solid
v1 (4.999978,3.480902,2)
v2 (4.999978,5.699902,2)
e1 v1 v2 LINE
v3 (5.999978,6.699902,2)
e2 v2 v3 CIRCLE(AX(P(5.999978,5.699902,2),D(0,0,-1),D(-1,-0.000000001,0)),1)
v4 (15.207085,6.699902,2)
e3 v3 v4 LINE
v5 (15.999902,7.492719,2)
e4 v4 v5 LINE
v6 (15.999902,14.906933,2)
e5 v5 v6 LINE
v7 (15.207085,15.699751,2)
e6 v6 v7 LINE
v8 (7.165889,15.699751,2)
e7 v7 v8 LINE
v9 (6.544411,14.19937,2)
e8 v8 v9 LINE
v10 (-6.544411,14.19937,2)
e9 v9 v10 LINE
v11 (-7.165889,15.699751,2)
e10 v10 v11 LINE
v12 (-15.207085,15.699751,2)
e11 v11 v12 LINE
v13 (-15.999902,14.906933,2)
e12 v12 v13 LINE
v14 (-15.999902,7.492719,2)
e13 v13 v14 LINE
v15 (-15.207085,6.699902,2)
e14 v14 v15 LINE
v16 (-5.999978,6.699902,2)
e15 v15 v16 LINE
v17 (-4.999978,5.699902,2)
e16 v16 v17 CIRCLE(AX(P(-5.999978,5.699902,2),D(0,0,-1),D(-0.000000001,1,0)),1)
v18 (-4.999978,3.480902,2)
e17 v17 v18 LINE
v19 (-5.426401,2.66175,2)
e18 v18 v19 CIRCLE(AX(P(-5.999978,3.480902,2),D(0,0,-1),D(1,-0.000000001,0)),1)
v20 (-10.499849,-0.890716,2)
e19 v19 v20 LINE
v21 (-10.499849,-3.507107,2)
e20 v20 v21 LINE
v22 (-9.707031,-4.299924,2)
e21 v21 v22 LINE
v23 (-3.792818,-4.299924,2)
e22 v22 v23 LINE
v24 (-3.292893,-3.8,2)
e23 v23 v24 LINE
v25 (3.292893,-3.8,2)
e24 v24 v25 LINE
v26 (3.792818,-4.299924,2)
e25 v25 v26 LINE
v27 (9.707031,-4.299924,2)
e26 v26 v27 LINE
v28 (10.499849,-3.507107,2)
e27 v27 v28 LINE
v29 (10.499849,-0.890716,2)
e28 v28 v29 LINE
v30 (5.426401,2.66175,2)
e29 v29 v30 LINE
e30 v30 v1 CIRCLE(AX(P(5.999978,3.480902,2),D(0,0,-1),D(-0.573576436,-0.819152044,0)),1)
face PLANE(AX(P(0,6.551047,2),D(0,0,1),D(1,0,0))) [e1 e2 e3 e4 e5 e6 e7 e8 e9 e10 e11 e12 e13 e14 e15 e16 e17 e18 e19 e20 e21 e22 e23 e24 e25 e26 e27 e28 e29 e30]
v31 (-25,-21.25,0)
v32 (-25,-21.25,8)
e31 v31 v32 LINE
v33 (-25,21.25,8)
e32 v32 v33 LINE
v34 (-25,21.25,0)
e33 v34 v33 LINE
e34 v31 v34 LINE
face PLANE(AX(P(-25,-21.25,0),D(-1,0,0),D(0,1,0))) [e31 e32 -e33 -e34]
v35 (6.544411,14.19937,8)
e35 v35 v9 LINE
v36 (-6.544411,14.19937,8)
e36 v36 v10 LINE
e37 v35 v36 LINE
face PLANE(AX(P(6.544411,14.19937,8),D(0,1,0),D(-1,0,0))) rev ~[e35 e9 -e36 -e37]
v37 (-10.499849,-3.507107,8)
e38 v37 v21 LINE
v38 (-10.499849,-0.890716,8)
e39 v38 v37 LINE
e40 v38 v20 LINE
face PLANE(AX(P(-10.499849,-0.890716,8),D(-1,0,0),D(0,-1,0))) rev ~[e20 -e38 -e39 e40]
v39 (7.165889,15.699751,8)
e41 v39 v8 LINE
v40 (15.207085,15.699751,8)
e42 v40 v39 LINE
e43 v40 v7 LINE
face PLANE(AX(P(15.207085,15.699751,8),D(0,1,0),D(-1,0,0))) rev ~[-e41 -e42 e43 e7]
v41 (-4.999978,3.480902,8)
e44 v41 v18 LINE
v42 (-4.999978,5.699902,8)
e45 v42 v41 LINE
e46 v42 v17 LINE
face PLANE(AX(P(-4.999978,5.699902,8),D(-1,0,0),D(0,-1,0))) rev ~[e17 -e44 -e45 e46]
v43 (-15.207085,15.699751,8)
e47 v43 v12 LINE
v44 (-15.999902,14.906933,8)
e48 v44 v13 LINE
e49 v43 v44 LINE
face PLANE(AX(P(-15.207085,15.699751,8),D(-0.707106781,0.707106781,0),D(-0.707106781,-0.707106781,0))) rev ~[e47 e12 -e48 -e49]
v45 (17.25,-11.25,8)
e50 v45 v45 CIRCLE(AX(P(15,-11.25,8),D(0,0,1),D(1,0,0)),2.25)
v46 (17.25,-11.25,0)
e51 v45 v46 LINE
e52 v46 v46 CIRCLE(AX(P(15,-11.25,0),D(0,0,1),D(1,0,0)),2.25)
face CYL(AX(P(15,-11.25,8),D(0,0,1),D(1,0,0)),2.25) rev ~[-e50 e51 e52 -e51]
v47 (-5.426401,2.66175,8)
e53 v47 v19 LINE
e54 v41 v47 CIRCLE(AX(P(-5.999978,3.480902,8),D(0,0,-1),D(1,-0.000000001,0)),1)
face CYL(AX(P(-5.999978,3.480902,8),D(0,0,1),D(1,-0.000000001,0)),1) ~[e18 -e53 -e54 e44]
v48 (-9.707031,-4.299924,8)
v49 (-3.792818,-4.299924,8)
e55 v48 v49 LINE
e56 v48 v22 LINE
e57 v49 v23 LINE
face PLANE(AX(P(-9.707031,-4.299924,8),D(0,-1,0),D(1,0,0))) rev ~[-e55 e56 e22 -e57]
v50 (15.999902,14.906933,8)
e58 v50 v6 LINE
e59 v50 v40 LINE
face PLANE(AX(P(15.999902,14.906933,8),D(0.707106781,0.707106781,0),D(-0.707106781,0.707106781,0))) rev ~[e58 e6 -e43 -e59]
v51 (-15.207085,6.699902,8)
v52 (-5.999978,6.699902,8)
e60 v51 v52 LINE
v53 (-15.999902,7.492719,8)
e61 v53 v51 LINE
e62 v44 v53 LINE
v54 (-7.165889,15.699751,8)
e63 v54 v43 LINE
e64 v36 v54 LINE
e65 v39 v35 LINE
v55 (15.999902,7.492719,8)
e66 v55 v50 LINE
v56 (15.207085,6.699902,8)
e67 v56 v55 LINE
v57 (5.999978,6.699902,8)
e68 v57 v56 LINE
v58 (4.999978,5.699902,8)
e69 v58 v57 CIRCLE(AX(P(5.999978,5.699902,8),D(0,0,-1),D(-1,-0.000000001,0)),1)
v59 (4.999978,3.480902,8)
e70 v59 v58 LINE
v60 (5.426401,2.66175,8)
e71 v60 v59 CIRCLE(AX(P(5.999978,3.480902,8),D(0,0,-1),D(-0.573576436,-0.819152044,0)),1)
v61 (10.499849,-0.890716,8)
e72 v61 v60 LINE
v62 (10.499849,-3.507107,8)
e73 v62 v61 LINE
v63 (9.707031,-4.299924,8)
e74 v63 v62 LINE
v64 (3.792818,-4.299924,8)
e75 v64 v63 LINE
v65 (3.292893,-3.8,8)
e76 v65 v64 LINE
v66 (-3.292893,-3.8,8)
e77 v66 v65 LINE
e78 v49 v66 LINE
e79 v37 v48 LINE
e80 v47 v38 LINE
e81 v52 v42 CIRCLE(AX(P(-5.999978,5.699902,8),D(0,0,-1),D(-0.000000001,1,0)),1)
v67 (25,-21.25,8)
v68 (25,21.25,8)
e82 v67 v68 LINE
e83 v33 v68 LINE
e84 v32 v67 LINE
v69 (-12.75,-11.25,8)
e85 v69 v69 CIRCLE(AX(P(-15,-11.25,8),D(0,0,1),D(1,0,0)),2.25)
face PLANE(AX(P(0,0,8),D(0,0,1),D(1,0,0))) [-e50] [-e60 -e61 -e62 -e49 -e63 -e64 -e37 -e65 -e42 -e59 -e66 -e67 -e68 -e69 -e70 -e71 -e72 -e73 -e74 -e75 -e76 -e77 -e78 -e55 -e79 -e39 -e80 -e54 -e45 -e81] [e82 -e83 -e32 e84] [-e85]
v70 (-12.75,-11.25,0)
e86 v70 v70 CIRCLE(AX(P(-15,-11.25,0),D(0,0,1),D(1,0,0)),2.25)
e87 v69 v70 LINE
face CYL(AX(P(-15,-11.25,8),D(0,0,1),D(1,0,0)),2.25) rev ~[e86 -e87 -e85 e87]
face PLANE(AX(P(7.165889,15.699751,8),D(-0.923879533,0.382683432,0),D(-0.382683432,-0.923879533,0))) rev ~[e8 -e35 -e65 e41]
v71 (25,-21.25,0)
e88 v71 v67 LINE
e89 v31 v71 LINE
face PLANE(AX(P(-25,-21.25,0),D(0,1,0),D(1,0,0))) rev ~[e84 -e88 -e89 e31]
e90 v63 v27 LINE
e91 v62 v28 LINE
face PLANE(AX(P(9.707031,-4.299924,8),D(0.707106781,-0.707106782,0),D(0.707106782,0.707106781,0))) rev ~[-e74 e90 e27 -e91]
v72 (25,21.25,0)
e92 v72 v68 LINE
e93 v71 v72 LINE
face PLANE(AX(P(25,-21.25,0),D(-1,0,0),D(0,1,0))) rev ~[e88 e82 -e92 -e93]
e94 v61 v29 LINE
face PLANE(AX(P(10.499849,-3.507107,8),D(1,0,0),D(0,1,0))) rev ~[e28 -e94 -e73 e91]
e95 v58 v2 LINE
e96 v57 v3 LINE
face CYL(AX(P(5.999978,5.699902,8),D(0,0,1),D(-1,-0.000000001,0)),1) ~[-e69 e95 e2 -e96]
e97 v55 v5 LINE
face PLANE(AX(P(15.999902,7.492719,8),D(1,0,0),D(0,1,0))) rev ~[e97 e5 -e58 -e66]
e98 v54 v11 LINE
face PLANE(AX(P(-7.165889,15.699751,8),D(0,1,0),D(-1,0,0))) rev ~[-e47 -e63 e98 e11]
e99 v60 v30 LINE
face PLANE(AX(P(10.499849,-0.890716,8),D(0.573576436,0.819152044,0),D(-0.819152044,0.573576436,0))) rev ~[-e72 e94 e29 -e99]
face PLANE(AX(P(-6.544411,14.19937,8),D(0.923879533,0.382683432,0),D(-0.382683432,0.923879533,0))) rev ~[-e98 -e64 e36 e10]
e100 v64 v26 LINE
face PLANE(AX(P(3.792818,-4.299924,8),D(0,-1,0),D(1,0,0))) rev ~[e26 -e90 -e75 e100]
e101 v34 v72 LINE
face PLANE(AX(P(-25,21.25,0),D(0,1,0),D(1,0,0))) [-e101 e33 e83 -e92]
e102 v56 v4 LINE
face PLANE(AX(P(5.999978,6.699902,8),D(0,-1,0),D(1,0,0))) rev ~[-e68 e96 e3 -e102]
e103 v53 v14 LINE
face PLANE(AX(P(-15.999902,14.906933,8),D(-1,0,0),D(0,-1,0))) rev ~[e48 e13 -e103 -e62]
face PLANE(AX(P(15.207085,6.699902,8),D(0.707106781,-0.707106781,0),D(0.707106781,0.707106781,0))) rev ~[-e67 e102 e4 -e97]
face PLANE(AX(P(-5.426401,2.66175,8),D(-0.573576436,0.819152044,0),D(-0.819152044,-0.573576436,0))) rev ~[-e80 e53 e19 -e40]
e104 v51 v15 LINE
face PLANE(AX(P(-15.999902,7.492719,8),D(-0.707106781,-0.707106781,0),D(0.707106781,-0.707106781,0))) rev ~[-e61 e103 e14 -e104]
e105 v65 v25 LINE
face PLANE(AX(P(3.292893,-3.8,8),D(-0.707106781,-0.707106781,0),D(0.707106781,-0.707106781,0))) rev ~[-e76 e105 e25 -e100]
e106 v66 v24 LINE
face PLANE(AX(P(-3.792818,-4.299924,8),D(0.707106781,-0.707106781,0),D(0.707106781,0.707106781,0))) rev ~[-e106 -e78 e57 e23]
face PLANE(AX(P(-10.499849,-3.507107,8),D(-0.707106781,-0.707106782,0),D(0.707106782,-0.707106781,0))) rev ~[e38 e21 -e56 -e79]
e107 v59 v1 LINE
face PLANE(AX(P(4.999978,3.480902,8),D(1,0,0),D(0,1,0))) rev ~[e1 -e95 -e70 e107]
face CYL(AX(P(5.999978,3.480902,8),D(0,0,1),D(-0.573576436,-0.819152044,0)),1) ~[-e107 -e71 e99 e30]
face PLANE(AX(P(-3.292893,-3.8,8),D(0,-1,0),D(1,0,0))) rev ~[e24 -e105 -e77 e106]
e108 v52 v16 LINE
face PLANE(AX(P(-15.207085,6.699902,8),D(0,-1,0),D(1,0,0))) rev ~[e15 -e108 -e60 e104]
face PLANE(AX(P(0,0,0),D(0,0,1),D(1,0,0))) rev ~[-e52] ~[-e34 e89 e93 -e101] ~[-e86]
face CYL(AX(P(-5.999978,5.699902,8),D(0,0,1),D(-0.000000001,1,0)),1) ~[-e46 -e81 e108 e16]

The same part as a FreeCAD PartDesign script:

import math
import FreeCAD as App
import Part
import Sketcher

V = App.Vector
Q = App.Units.Quantity

doc = App.newDocument("Part")
body = doc.addObject("PartDesign::Body", "Body")

# Sketch on XY plane
sketch1 = body.newObject("Sketcher::SketchObject", "Sketch")
sketch1.AttachmentSupport = (doc.getObject("XY_Plane"), [""])
sketch1.MapMode = "FlatFace"
sketch1.addGeometry([
    Part.LineSegment(V(-25, 21, 0), V(-25, -21, 0)),
    Part.LineSegment(V(-25, -21, 0), V(25, -21, 0)),
    Part.LineSegment(V(25, -21, 0), V(25, 21, 0)),
    Part.LineSegment(V(25, 21, 0), V(-25, 21, 0)),
], False)
sketch1.addConstraint([
    Sketcher.Constraint("Coincident", 0, 2, 1, 1),
    Sketcher.Constraint("Coincident", 1, 2, 2, 1),
    Sketcher.Constraint("Coincident", 2, 2, 3, 1),
    Sketcher.Constraint("Coincident", 3, 2, 0, 1),
    Sketcher.Constraint("Vertical", 0),
    Sketcher.Constraint("Horizontal", 1),
    Sketcher.Constraint("Vertical", 2),
    Sketcher.Constraint("Horizontal", 3),
    Sketcher.Constraint("Symmetric", 0, 2, 2, 2, -1, 1),
    Sketcher.Constraint("DistanceX", 1, 1, 1, 2, 50.0),
    Sketcher.Constraint("DistanceY", 0, 2, 0, 1, 42.5),
])
pad1 = body.newObject("PartDesign::Pad", "Pad")
pad1.Profile = sketch1
pad1.Length = 8

# Sketch on XY plane
sketch2 = body.newObject("Sketcher::SketchObject", "Sketch001")
sketch2.AttachmentSupport = (doc.getObject("XY_Plane"), [""])
sketch2.MapMode = "FlatFace"
sketch2.AttachmentOffset = App.Placement(V(0, 0, 8), App.Rotation())
sketch2.addGeometry([
    Part.LineSegment(V(-3.3, -3.8, 0), V(3.3, -3.8, 0)),  # 0
    Part.LineSegment(V(3.3, -3.8, 0), V(3.8, -4.3, 0)),  # 1
    Part.LineSegment(V(3.8, -4.3, 0), V(9.7, -4.3, 0)),  # 2
    Part.LineSegment(V(9.7, -4.3, 0), V(10.5, -3.5, 0)),  # 3
    Part.LineSegment(V(10.5, -3.5, 0), V(10.5, -0.9, 0)),  # 4
    Part.LineSegment(V(10.5, -0.9, 0), V(5.4, 2.7, 0)),  # 5
    Part.ArcOfCircle(Part.Circle(V(6, 3.5, 0), V(0, 0, 1), 1), math.radians(-180), math.radians(-125)),  # 6
    Part.LineSegment(V(5, 3.5, 0), V(5, 5.7, 0)),  # 7
    Part.ArcOfCircle(Part.Circle(V(6, 5.7, 0), V(0, 0, 1), 1), math.radians(90), math.radians(180)),  # 8
    Part.LineSegment(V(6, 6.7, 0), V(15.2, 6.7, 0)),  # 9
    Part.LineSegment(V(15.2, 6.7, 0), V(16, 7.5, 0)),  # 10
    Part.LineSegment(V(16, 7.5, 0), V(16, 14.9, 0)),  # 11
    Part.LineSegment(V(16, 14.9, 0), V(15.2, 15.7, 0)),  # 12
    Part.LineSegment(V(15.2, 15.7, 0), V(7.2, 15.7, 0)),  # 13
    Part.LineSegment(V(7.2, 15.7, 0), V(6.5, 14.2, 0)),  # 14
    Part.LineSegment(V(6.5, 14.2, 0), V(-6.5, 14.2, 0)),  # 15
    Part.LineSegment(V(-6.5, 14.2, 0), V(-7.2, 15.7, 0)),  # 16
    Part.LineSegment(V(-7.2, 15.7, 0), V(-15.2, 15.7, 0)),  # 17
    Part.LineSegment(V(-15.2, 15.7, 0), V(-16, 14.9, 0)),  # 18
    Part.LineSegment(V(-16, 14.9, 0), V(-16, 7.5, 0)),  # 19
    Part.LineSegment(V(-16, 7.5, 0), V(-15.2, 6.7, 0)),  # 20
    Part.LineSegment(V(-15.2, 6.7, 0), V(-6, 6.7, 0)),  # 21
    Part.ArcOfCircle(Part.Circle(V(-6, 5.7, 0), V(0, 0, 1), 1), math.radians(0), math.radians(90)),  # 22
    Part.LineSegment(V(-5, 5.7, 0), V(-5, 3.5, 0)),  # 23
    Part.ArcOfCircle(Part.Circle(V(-6, 3.5, 0), V(0, 0, 1), 1), math.radians(-55), math.radians(0)),  # 24
    Part.LineSegment(V(-5.4, 2.7, 0), V(-10.5, -0.9, 0)),  # 25
    Part.LineSegment(V(-10.5, -0.9, 0), V(-10.5, -3.5, 0)),  # 26
    Part.LineSegment(V(-10.5, -3.5, 0), V(-9.7, -4.3, 0)),  # 27
    Part.LineSegment(V(-9.7, -4.3, 0), V(-3.8, -4.3, 0)),  # 28
    Part.LineSegment(V(-3.8, -4.3, 0), V(-3.3, -3.8, 0)),  # 29
], False)
sketch2.addConstraint([
    Sketcher.Constraint("Coincident", 0, 2, 1, 1),
    Sketcher.Constraint("Coincident", 1, 2, 2, 1),
    Sketcher.Constraint("Coincident", 2, 2, 3, 1),
    Sketcher.Constraint("Coincident", 3, 2, 4, 1),
    Sketcher.Constraint("Coincident", 4, 2, 5, 1),
    Sketcher.Constraint("Tangent", 5, 2, 6, 2),
    Sketcher.Constraint("Tangent", 6, 1, 7, 1),
    Sketcher.Constraint("Tangent", 7, 2, 8, 2),
    Sketcher.Constraint("Tangent", 8, 1, 9, 1),
    Sketcher.Constraint("Coincident", 9, 2, 10, 1),
    Sketcher.Constraint("Coincident", 10, 2, 11, 1),
    Sketcher.Constraint("Coincident", 11, 2, 12, 1),
    Sketcher.Constraint("Coincident", 12, 2, 13, 1),
    Sketcher.Constraint("Coincident", 13, 2, 14, 1),
    Sketcher.Constraint("Coincident", 14, 2, 15, 1),
    Sketcher.Constraint("Coincident", 15, 2, 16, 1),
    Sketcher.Constraint("Coincident", 16, 2, 17, 1),
    Sketcher.Constraint("Coincident", 17, 2, 18, 1),
    Sketcher.Constraint("Coincident", 18, 2, 19, 1),
    Sketcher.Constraint("Coincident", 19, 2, 20, 1),
    Sketcher.Constraint("Coincident", 20, 2, 21, 1),
    Sketcher.Constraint("Tangent", 21, 2, 22, 2),
    Sketcher.Constraint("Tangent", 22, 1, 23, 1),
    Sketcher.Constraint("Tangent", 23, 2, 24, 2),
    Sketcher.Constraint("Tangent", 24, 1, 25, 1),
    Sketcher.Constraint("Coincident", 25, 2, 26, 1),
    Sketcher.Constraint("Coincident", 26, 2, 27, 1),
    Sketcher.Constraint("Coincident", 27, 2, 28, 1),
    Sketcher.Constraint("Coincident", 28, 2, 29, 1),
    Sketcher.Constraint("Coincident", 29, 2, 0, 1),
    Sketcher.Constraint("Horizontal", 0),
    Sketcher.Constraint("Horizontal", 2),
    Sketcher.Constraint("Vertical", 4),
    Sketcher.Constraint("Vertical", 7),
    Sketcher.Constraint("Horizontal", 9),
    Sketcher.Constraint("Vertical", 11),
    Sketcher.Constraint("Horizontal", 13),
    Sketcher.Constraint("Horizontal", 15),
    Sketcher.Constraint("Horizontal", 17),
    Sketcher.Constraint("Vertical", 19),
    Sketcher.Constraint("Horizontal", 21),
    Sketcher.Constraint("Vertical", 23),
    Sketcher.Constraint("Vertical", 26),
    Sketcher.Constraint("Horizontal", 28),
    Sketcher.Constraint("Equal", 6, 8),
    Sketcher.Constraint("Equal", 8, 22),
    Sketcher.Constraint("Equal", 22, 24),
    Sketcher.Constraint("Symmetric", 8, 3, 22, 3, -2),
    Sketcher.Constraint("Symmetric", 13, 2, 16, 2, -2),
    Sketcher.Constraint("Symmetric", 11, 2, 18, 2, -2),
    Sketcher.Constraint("Symmetric", 5, 2, 24, 1, -2),
    Sketcher.Constraint("Symmetric", 3, 2, 26, 2, -2),
    Sketcher.Constraint("Symmetric", 2, 2, 27, 2, -2),
    Sketcher.Constraint("Perpendicular", 1, 3),
    Sketcher.Constraint("Parallel", 3, 10),
    Sketcher.Constraint("Perpendicular", 10, 12),
    Sketcher.Constraint("Perpendicular", 12, 18),
    Sketcher.Constraint("Perpendicular", 18, 20),
    Sketcher.Constraint("Parallel", 20, 27),
    Sketcher.Constraint("Perpendicular", 27, 29),
    Sketcher.Constraint("Horizontal", 10, 2, 19, 2),
    Sketcher.Constraint("Vertical", 9, 2, 12, 2),
    Sketcher.Constraint("Equal", 2, 28),
    Sketcher.Constraint("Equal", 3, 10),
    Sketcher.Constraint("Equal", 14, 16),
    Sketcher.Constraint("Radius", 6, 1.0),
    Sketcher.Constraint("Angle", 5, Q("145 deg")),
    Sketcher.Constraint("Angle", 14, Q("-112.5 deg")),
    Sketcher.Constraint("DistanceY", 0, 2, -1, 1, 3.8),
    Sketcher.Constraint("DistanceY", 7, 1, 7, 2, 2.219),
    Sketcher.Constraint("Distance", 1, 0.707),
    Sketcher.Constraint("Distance", 14, 1.624),
    Sketcher.Constraint("DistanceX", 15, 2, 15, 1, 13.088821),
    Sketcher.Constraint("DistanceY", 4, 1, 4, 2, 2.61639),
    Sketcher.Constraint("DistanceY", -1, 1, 6, 3, 3.480902),
    Sketcher.Constraint("DistanceX", -1, 1, 5, 2, 5.426401),
    Sketcher.Constraint("DistanceX", 0, 1, 0, 2, 6.585786),
    Sketcher.Constraint("DistanceX", 2, 1, 2, 2, 5.914214),
    Sketcher.Constraint("DistanceX", 9, 1, 9, 2, 9.207107),
    Sketcher.Constraint("DistanceY", 11, 1, 11, 2, 7.414214),
])
pocket1 = body.newObject("PartDesign::Pocket", "Pocket")
pocket1.Profile = sketch2
pocket1.Length = 6

# Sketch on XY plane
sketch3 = body.newObject("Sketcher::SketchObject", "Sketch002")
sketch3.AttachmentSupport = (doc.getObject("XY_Plane"), [""])
sketch3.MapMode = "FlatFace"
sketch3.AttachmentOffset = App.Placement(V(0, 0, 8), App.Rotation())
sketch3.addGeometry([
    Part.Circle(V(-15, -11.2, 0), V(0, 0, 1), 2.2),
    Part.Circle(V(15, -11.2, 0), V(0, 0, 1), 2.2),
], False)
sketch3.addConstraint([
    Sketcher.Constraint("Equal", 0, 1),
    Sketcher.Constraint("Symmetric", 0, 3, 1, 3, -2),
    Sketcher.Constraint("Diameter", 0, 4.5),
    Sketcher.Constraint("DistanceX", 0, 3, -1, 1, 15.0),
    Sketcher.Constraint("DistanceY", 0, 3, -1, 1, 11.25),
])
pocket2 = body.newObject("PartDesign::Pocket", "Pocket001")
pocket2.Profile = sketch3
pocket2.Type = "ThroughAll"

doc.recompute()
